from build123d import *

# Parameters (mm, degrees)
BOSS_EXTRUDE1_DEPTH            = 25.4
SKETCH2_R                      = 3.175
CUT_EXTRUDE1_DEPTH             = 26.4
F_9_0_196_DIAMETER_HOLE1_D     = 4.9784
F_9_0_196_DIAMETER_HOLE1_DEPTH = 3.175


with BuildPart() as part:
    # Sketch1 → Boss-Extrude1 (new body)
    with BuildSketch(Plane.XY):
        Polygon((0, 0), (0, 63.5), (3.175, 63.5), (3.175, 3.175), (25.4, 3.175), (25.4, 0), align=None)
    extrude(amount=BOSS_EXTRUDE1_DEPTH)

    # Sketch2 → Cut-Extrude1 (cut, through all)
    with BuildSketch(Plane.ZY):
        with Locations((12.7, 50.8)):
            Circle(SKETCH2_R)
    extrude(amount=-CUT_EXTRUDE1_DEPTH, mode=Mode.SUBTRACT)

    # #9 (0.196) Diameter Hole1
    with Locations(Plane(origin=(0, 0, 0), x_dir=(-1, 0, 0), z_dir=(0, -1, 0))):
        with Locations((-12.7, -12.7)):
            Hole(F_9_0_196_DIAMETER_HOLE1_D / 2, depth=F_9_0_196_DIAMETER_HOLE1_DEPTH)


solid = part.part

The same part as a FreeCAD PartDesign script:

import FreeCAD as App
import Part
import Sketcher
from FreeCAD import Vector
Q = App.Units.Quantity

doc = App.newDocument("Part")
body = doc.addObject("PartDesign::Body", "Body")

sketch1 = body.newObject("Sketcher::SketchObject", "Sketch")
sketch1.AttachmentSupport = (doc.getObject("XY_Plane"), [""])
sketch1.MapMode = "FlatFace"
sketch1.addGeometry(Part.LineSegment(Vector(0, 63.5, 0), Vector(0, 0, 0)), False)
sketch1.addGeometry(Part.LineSegment(Vector(0, 0, 0), Vector(25.4, 0, 0)), False)
sketch1.addGeometry(Part.LineSegment(Vector(25.4, 0, 0), Vector(25.4, 3.2, 0)), False)
sketch1.addGeometry(Part.LineSegment(Vector(25.4, 3.2, 0), Vector(3.2, 3.2, 0)), False)
sketch1.addGeometry(Part.LineSegment(Vector(3.2, 3.2, 0), Vector(3.2, 63.5, 0)), False)
sketch1.addGeometry(Part.LineSegment(Vector(3.2, 63.5, 0), Vector(0, 63.5, 0)), False)
sketch1.addConstraint(Sketcher.Constraint("Coincident", 0, 2, 1, 1))
sketch1.addConstraint(Sketcher.Constraint("Coincident", 1, 2, 2, 1))
sketch1.addConstraint(Sketcher.Constraint("Coincident", 2, 2, 3, 1))
sketch1.addConstraint(Sketcher.Constraint("Coincident", 3, 2, 4, 1))
sketch1.addConstraint(Sketcher.Constraint("Coincident", 4, 2, 5, 1))
sketch1.addConstraint(Sketcher.Constraint("Coincident", 5, 2, 0, 1))
sketch1.addConstraint(Sketcher.Constraint("Vertical", 0))
sketch1.addConstraint(Sketcher.Constraint("Horizontal", 1))
sketch1.addConstraint(Sketcher.Constraint("Vertical", 2))
sketch1.addConstraint(Sketcher.Constraint("Horizontal", 3))
sketch1.addConstraint(Sketcher.Constraint("Vertical", 4))
sketch1.addConstraint(Sketcher.Constraint("Horizontal", 5))
sketch1.addConstraint(Sketcher.Constraint("Coincident", 0, 2, -1, 1))
sketch1.addConstraint(Sketcher.Constraint("Equal", 5, 2))
sketch1.addConstraint(Sketcher.Constraint("DistanceX", 1, 1, 1, 2, Q("1 in")))
sketch1.addConstraint(Sketcher.Constraint("DistanceY", 0, 2, 0, 1, Q("2.5 in")))
sketch1.addConstraint(Sketcher.Constraint("DistanceX", 3, 2, 3, 1, Q("0.875 in")))
pad1 = body.newObject("PartDesign::Pad", "Pad")
pad1.Profile = sketch1
pad1.Length = Q("1 in")

sketch2 = body.newObject("Sketcher::SketchObject", "Sketch001")
sketch2.AttachmentSupport = (doc.getObject("YZ_Plane"), [""])
sketch2.MapMode = "FlatFace"
sketch2.addGeometry(Part.Circle(Vector(50.8, 12.7, 0), Vector(0, 0, 1), 3.2), False)
sketch2.addConstraint(Sketcher.Constraint("Diameter", 0, Q("0.25 in")))
sketch2.addConstraint(Sketcher.Constraint("DistanceX", -1, 1, 0, 3, Q("2 in")))
sketch2.addConstraint(Sketcher.Constraint("DistanceY", -1, 1, 0, 3, Q("0.5 in")))
pocket1 = body.newObject("PartDesign::Pocket", "Pocket")
pocket1.Profile = sketch2
pocket1.Type = "ThroughAll"
pocket1.Reversed = True

sketch3 = body.newObject("Sketcher::SketchObject", "Sketch002")
sketch3.AttachmentSupport = (doc.getObject("XZ_Plane"), [""])
sketch3.MapMode = "FlatFace"
sketch3.addGeometry(Part.Circle(Vector(12.7, 12.7, 0), Vector(0, 0, 1), 2.5), False)
sketch3.addConstraint(Sketcher.Constraint("Diameter", 0, Q("0.196 in")))
sketch3.addConstraint(Sketcher.Constraint("DistanceX", -1, 1, 0, 3, Q("0.5 in")))
sketch3.addConstraint(Sketcher.Constraint("DistanceY", -1, 1, 0, 3, Q("0.5 in")))
doc.recompute()
hole = body.newObject("PartDesign::Hole", "Hole")
hole.Profile = sketch3
hole.ThreadType = "None"
hole.Diameter = Q("0.196 in")
hole.DepthType = "Dimension"
hole.Depth = Q("0.125 in")
hole.DrillPoint = "Flat"

doc.recompute()
